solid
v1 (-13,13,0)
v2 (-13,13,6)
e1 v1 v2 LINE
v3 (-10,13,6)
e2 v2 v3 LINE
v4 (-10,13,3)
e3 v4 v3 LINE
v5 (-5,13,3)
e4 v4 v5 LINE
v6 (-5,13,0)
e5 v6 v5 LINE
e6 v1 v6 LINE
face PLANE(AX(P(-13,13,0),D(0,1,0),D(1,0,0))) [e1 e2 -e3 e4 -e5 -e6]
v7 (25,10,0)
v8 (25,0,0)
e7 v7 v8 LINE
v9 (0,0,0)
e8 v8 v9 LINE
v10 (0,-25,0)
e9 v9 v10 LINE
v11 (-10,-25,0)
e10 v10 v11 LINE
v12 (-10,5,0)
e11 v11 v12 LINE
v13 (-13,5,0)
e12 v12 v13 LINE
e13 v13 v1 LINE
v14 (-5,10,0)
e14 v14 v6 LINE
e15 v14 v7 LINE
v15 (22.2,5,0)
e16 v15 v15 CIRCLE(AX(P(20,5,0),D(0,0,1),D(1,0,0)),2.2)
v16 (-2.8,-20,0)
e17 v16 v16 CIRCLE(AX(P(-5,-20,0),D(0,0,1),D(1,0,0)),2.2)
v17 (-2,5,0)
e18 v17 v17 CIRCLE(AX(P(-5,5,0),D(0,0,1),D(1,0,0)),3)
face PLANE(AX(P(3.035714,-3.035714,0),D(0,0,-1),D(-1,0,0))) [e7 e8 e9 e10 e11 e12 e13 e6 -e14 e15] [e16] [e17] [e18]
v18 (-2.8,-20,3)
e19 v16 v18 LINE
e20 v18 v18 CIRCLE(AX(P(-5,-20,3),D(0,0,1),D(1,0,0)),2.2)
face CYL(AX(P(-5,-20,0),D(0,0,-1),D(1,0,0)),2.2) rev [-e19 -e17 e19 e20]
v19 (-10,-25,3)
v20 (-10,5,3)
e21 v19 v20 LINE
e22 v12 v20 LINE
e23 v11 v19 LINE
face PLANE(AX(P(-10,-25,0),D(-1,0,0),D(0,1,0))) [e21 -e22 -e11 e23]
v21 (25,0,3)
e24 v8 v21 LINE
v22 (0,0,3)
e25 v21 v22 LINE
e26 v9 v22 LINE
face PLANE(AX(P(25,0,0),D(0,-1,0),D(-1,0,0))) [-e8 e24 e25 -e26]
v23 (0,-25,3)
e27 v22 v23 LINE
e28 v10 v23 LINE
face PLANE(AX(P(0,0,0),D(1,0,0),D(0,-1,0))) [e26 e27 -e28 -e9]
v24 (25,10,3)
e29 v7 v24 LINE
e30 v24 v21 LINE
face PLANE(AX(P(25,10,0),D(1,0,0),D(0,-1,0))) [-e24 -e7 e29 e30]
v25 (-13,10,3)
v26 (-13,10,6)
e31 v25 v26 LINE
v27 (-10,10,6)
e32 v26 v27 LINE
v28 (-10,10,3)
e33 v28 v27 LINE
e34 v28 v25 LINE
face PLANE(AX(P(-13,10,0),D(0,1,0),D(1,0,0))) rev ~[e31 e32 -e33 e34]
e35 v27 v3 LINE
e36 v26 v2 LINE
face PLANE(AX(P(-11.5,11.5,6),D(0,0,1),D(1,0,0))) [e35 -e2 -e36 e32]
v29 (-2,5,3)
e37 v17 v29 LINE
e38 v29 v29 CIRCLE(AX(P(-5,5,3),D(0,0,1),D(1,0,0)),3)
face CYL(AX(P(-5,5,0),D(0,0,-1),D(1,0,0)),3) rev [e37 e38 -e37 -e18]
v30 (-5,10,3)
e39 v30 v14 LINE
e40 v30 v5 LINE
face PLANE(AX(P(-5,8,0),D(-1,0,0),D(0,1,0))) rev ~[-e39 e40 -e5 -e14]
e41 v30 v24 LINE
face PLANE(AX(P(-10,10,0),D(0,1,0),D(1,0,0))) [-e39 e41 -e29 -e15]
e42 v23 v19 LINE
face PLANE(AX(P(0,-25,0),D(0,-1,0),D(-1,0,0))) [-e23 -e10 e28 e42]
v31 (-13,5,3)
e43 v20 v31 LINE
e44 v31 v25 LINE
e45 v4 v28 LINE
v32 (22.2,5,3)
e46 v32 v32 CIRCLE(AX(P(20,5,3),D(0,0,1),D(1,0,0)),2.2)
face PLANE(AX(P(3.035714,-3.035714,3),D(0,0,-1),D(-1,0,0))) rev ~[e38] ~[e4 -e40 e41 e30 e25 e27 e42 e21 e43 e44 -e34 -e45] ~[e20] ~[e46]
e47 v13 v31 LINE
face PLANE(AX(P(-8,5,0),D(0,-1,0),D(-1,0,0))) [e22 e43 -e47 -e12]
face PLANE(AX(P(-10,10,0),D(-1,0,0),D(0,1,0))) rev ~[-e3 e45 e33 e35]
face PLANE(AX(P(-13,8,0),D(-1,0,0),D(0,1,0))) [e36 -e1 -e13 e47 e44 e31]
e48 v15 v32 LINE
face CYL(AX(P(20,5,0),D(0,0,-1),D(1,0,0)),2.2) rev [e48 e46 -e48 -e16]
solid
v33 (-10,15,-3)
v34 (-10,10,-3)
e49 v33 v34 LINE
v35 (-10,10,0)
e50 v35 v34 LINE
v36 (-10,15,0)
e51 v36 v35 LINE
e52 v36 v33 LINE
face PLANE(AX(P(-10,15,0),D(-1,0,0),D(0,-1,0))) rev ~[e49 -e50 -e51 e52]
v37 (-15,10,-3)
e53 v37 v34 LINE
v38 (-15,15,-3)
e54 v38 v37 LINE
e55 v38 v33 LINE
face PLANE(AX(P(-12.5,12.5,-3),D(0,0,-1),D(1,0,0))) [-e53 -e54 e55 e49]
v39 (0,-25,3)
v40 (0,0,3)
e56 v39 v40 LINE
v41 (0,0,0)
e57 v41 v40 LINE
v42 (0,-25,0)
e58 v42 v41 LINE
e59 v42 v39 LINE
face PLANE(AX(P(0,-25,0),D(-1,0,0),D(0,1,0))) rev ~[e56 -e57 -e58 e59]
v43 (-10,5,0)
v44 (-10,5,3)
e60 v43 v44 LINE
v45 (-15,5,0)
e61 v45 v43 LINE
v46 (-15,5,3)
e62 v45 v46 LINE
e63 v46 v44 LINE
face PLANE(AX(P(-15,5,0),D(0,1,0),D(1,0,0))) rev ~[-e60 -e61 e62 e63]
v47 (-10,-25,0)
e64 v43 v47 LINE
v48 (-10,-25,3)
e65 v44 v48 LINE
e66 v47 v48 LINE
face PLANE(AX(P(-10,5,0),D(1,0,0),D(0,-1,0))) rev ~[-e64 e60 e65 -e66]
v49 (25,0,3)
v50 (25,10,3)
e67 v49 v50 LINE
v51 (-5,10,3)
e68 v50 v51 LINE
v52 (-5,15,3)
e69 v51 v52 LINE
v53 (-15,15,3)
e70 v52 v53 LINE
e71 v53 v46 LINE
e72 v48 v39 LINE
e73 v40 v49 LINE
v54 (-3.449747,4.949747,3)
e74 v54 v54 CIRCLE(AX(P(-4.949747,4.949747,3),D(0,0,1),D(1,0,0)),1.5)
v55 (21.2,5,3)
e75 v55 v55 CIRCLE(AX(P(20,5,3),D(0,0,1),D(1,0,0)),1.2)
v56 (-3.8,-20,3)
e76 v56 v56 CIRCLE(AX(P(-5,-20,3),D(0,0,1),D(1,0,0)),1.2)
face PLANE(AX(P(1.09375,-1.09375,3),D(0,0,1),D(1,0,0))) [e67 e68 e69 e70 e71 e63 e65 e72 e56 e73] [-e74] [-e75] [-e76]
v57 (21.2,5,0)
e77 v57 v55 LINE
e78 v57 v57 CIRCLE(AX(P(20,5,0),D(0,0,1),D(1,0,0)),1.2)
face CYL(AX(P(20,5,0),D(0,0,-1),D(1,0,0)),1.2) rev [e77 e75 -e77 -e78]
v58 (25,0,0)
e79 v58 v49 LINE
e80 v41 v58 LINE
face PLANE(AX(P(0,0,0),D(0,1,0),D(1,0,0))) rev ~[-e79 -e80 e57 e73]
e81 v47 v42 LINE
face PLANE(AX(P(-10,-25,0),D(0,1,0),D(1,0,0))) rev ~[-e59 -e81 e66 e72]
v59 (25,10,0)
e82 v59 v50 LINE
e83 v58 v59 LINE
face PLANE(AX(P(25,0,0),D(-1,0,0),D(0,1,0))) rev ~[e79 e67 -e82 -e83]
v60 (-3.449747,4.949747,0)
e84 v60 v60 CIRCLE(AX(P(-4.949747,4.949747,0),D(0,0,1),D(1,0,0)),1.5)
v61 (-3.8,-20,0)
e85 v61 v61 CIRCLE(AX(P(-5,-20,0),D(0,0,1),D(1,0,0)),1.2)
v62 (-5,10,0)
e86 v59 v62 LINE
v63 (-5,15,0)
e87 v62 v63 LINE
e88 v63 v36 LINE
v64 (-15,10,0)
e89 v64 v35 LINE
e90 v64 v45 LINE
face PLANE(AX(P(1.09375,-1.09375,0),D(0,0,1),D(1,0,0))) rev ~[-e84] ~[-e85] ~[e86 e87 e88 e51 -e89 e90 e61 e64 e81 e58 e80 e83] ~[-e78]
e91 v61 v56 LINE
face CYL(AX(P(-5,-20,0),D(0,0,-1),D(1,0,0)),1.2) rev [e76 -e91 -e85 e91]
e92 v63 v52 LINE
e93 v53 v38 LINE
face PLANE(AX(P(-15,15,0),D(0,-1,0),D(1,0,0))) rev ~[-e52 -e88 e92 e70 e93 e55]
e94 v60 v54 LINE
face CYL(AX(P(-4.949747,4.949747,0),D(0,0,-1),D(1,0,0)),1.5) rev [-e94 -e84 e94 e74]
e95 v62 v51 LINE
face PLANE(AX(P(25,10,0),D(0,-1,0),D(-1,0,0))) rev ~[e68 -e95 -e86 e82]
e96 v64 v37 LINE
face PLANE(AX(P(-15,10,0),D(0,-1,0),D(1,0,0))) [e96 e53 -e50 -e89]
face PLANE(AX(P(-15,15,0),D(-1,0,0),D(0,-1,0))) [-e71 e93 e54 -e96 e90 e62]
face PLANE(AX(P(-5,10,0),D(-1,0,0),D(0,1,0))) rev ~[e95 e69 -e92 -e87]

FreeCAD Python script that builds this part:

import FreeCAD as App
import Part
import Sketcher

doc = App.newDocument("Part")
body = doc.addObject("PartDesign::Body", "Body")

# Sketch on XY plane
sketch1 = body.newObject("Sketcher::SketchObject", "Sketch")
sketch1.AttachmentSupport = (doc.getObject("XY_Plane"), [""])
sketch1.MapMode = "FlatFace"
sketch1.addGeometry([
    Part.LineSegment(App.Vector(-13, 5, 0), App.Vector(-8, 5, 0)),
    Part.LineSegment(App.Vector(-8, 5, 0), App.Vector(-8, 13, 0)),
    Part.LineSegment(App.Vector(-8, 13, 0), App.Vector(-13, 13, 0)),
    Part.LineSegment(App.Vector(-13, 13, 0), App.Vector(-13, 5, 0)),
], False)
sketch1.addConstraint([
    Sketcher.Constraint("Coincident", 0, 2, 1, 1),
    Sketcher.Constraint("Coincident", 1, 2, 2, 1),
    Sketcher.Constraint("Coincident", 2, 2, 3, 1),
    Sketcher.Constraint("Coincident", 3, 2, 0, 1),
    Sketcher.Constraint("Horizontal", 0),
    Sketcher.Constraint("Vertical", 1),
    Sketcher.Constraint("Horizontal", 2),
    Sketcher.Constraint("Vertical", 3),
    Sketcher.Constraint("DistanceX", 0, 1, 0, 2, 5.0),
    Sketcher.Constraint("DistanceY", 1, 1, 1, 2, 8.0),
    Sketcher.Constraint("DistanceX", 0, 2, -1, 1, 8.0),
    Sketcher.Constraint("DistanceY", -1, 1, 0, 2, 5.0),
])
pad1 = body.newObject("PartDesign::Pad", "Pad")
pad1.Profile = sketch1
pad1.Length = 3
body2 = doc.addObject("PartDesign::Body", "Body001")

# Sketch on XY plane
sketch2 = body2.newObject("Sketcher::SketchObject", "Sketch001")
sketch2.AttachmentSupport = (doc.getObject("XY_Plane001"), [""])
sketch2.MapMode = "FlatFace"
sketch2.addGeometry([
    Part.LineSegment(App.Vector(0, -25, 0), App.Vector(0, 0, 0)),  # 0
    Part.LineSegment(App.Vector(0, 0, 0), App.Vector(25, 0, 0)),  # 1
    Part.LineSegment(App.Vector(25, 0, 0), App.Vector(25, 10, 0)),  # 2
    Part.LineSegment(App.Vector(25, 10, 0), App.Vector(-10, 10, 0)),  # 3
    Part.LineSegment(App.Vector(-10, 10, 0), App.Vector(-10, -25, 0)),  # 4
    Part.LineSegment(App.Vector(-10, -25, 0), App.Vector(0, -25, 0)),  # 5
    Part.Circle(App.Vector(-5, -20, 0), App.Vector(0, 0, 1), 2.2),  # 6
    Part.Circle(App.Vector(20, 5, 0), App.Vector(0, 0, 1), 2.2),  # 7
    Part.Circle(App.Vector(-5, 5, 0), App.Vector(0, 0, 1), 3),  # 8
], False)
sketch2.addConstraint([
    Sketcher.Constraint("Coincident", 0, 2, 1, 1),
    Sketcher.Constraint("Coincident", 1, 2, 2, 1),
    Sketcher.Constraint("Coincident", 2, 2, 3, 1),
    Sketcher.Constraint("Coincident", 3, 2, 4, 1),
    Sketcher.Constraint("Coincident", 4, 2, 5, 1),
    Sketcher.Constraint("Coincident", 5, 2, 0, 1),
    Sketcher.Constraint("Vertical", 0),
    Sketcher.Constraint("Horizontal", 1),
    Sketcher.Constraint("Vertical", 2),
    Sketcher.Constraint("Horizontal", 3),
    Sketcher.Constraint("Vertical", 4),
    Sketcher.Constraint("Horizontal", 5),
    Sketcher.Constraint("Coincident", 0, 2, -1, 1),
    Sketcher.Constraint("Equal", 6, 7),
    Sketcher.Constraint("Horizontal", 7, 3, 8, 3),
    Sketcher.Constraint("Vertical", 6, 3, 8, 3),
    Sketcher.Constraint("Equal", 1, 0),
    Sketcher.Constraint("Equal", 5, 2),
    Sketcher.Constraint("Diameter", 8, 6.0),
    Sketcher.Constraint("Diameter", 6, 4.4),
    Sketcher.Constraint("DistanceX", 1, 1, 1, 2, 25.0),
    Sketcher.Constraint("DistanceX", 3, 2, 3, 1, 35.0),
    Sketcher.Constraint("DistanceX", 6, 3, -1, 1, 5.0),
    Sketcher.Constraint("DistanceY", 6, 3, -1, 1, 20.0),
    Sketcher.Constraint("DistanceX", -1, 1, 7, 3, 20.0),
    Sketcher.Constraint("DistanceY", -1, 1, 7, 3, 5.0),
])
pad2 = body2.newObject("PartDesign::Pad", "Pad001")
pad2.Profile = sketch2
pad2.Length = 3
body3 = doc.addObject("PartDesign::Body", "Body002")

# Sketch on XY plane
sketch3 = body3.newObject("Sketcher::SketchObject", "Sketch002")
sketch3.AttachmentSupport = (doc.getObject("XY_Plane002"), [""])
sketch3.MapMode = "FlatFace"
sketch3.addGeometry([
    Part.LineSegment(App.Vector(-13, 13, 0), App.Vector(-13, 10, 0)),
    Part.LineSegment(App.Vector(-13, 10, 0), App.Vector(-10, 10, 0)),
    Part.LineSegment(App.Vector(-10, 10, 0), App.Vector(-10, 13, 0)),
    Part.LineSegment(App.Vector(-10, 13, 0), App.Vector(-13, 13, 0)),
], False)
sketch3.addConstraint([
    Sketcher.Constraint("Coincident", 0, 2, 1, 1),
    Sketcher.Constraint("Coincident", 1, 2, 2, 1),
    Sketcher.Constraint("Coincident", 2, 2, 3, 1),
    Sketcher.Constraint("Coincident", 3, 2, 0, 1),
    Sketcher.Constraint("Vertical", 0),
    Sketcher.Constraint("Horizontal", 1),
    Sketcher.Constraint("Vertical", 2),
    Sketcher.Constraint("Horizontal", 3),
    Sketcher.Constraint("Equal", 3, 0),
    Sketcher.Constraint("DistanceX", 1, 1, 1, 2, 3.0),
    Sketcher.Constraint("DistanceX", 0, 2, -1, 1, 13.0),
    Sketcher.Constraint("DistanceY", -1, 1, 0, 2, 10.0),
])
pad3 = body3.newObject("PartDesign::Pad", "Pad002")
pad3.Profile = sketch3
pad3.Length = 6
body4 = doc.addObject("PartDesign::Body", "Body003")

# Sketch on XY plane
sketch4 = body4.newObject("Sketcher::SketchObject", "Sketch003")
sketch4.AttachmentSupport = (doc.getObject("XY_Plane003"), [""])
sketch4.MapMode = "FlatFace"
sketch4.addGeometry([
    Part.LineSegment(App.Vector(-13, 13, 0), App.Vector(-13, 8, 0)),
    Part.LineSegment(App.Vector(-13, 8, 0), App.Vector(-5, 8, 0)),
    Part.LineSegment(App.Vector(-5, 8, 0), App.Vector(-5, 13, 0)),
    Part.LineSegment(App.Vector(-5, 13, 0), App.Vector(-13, 13, 0)),
], False)
sketch4.addConstraint([
    Sketcher.Constraint("Coincident", 0, 2, 1, 1),
    Sketcher.Constraint("Coincident", 1, 2, 2, 1),
    Sketcher.Constraint("Coincident", 2, 2, 3, 1),
    Sketcher.Constraint("Coincident", 3, 2, 0, 1),
    Sketcher.Constraint("Vertical", 0),
    Sketcher.Constraint("Horizontal", 1),
    Sketcher.Constraint("Vertical", 2),
    Sketcher.Constraint("Horizontal", 3),
    Sketcher.Constraint("DistanceX", 1, 1, 1, 2, 8.0),
    Sketcher.Constraint("DistanceY", 0, 2, 0, 1, 5.0),
    Sketcher.Constraint("DistanceX", 0, 2, -1, 1, 13.0),
    Sketcher.Constraint("DistanceY", -1, 1, 0, 2, 8.0),
])
pad4 = body4.newObject("PartDesign::Pad", "Pad003")
pad4.Profile = sketch4
pad4.Length = 3
doc.recompute()

boolean = body4.newObject("PartDesign::Boolean", "Boolean")
boolean.Type = "Fuse"
boolean.addObjects([body3])
doc.recompute()

boolean2 = body4.newObject("PartDesign::Boolean", "Boolean001")
boolean2.Type = "Fuse"
boolean2.addObjects([body2])
doc.recompute()

boolean3 = body4.newObject("PartDesign::Boolean", "Boolean002")
boolean3.Type = "Fuse"
boolean3.addObjects([body])
body5 = doc.addObject("PartDesign::Body", "Body004")

# Sketch on XY plane
sketch5 = body5.newObject("Sketcher::SketchObject", "Sketch004")
sketch5.AttachmentSupport = (doc.getObject("XY_Plane004"), [""])
sketch5.MapMode = "FlatFace"
sketch5.addGeometry([
    Part.LineSegment(App.Vector(25, 10, 0), App.Vector(-5, 10, 0)),  # 0
    Part.LineSegment(App.Vector(-5, 10, 0), App.Vector(-5, 15, 0)),  # 1
    Part.LineSegment(App.Vector(-5, 15, 0), App.Vector(-15, 15, 0)),  # 2
    Part.LineSegment(App.Vector(-15, 15, 0), App.Vector(-15, 5, 0)),  # 3
    Part.LineSegment(App.Vector(-15, 5, 0), App.Vector(-10, 5, 0)),  # 4
    Part.LineSegment(App.Vector(-10, 5, 0), App.Vector(-10, -25, 0)),  # 5
    Part.LineSegment(App.Vector(-10, -25, 0), App.Vector(0, -25, 0)),  # 6
    Part.LineSegment(App.Vector(0, -25, 0), App.Vector(0, 0, 0)),  # 7
    Part.LineSegment(App.Vector(0, 0, 0), App.Vector(25, 0, 0)),  # 8
    Part.LineSegment(App.Vector(25, 0, 0), App.Vector(25, 10, 0)),  # 9
    Part.Circle(App.Vector(-5, -20, 0), App.Vector(0, 0, 1), 1.2),  # 10
    Part.Circle(App.Vector(-4.949747, 4.949747, 0), App.Vector(0, 0, 1), 1.5),  # 11
    Part.Circle(App.Vector(20, 5, 0), App.Vector(0, 0, 1), 1.2),  # 12
], False)
sketch5.addConstraint([
    Sketcher.Constraint("Coincident", 0, 2, 1, 1),
    Sketcher.Constraint("Coincident", 1, 2, 2, 1),
    Sketcher.Constraint("Coincident", 2, 2, 3, 1),
    Sketcher.Constraint("Coincident", 3, 2, 4, 1),
    Sketcher.Constraint("Coincident", 4, 2, 5, 1),
    Sketcher.Constraint("Coincident", 5, 2, 6, 1),
    Sketcher.Constraint("Coincident", 6, 2, 7, 1),
    Sketcher.Constraint("Coincident", 7, 2, 8, 1),
    Sketcher.Constraint("Coincident", 8, 2, 9, 1),
    Sketcher.Constraint("Coincident", 9, 2, 0, 1),
    Sketcher.Constraint("Horizontal", 0),
    Sketcher.Constraint("Vertical", 1),
    Sketcher.Constraint("Horizontal", 2),
    Sketcher.Constraint("Vertical", 3),
    Sketcher.Constraint("Horizontal", 4),
    Sketcher.Constraint("Vertical", 5),
    Sketcher.Constraint("Horizontal", 6),
    Sketcher.Constraint("Vertical", 7),
    Sketcher.Constraint("Horizontal", 8),
    Sketcher.Constraint("Vertical", 9),
    Sketcher.Constraint("Coincident", 7, 2, -1, 1),
    Sketcher.Constraint("Equal", 10, 12),
    Sketcher.Constraint("Horizontal", 12, 3, 3, 2),
    Sketcher.Constraint("Vertical", 10, 3, 0, 2),
    Sketcher.Constraint("Equal", 2, 6),
    Sketcher.Constraint("Equal", 4, 1),
    Sketcher.Constraint("Equal", 6, 3),
    Sketcher.Constraint("Equal", 0, 5),
    Sketcher.Constraint("Equal", 8, 7),
    Sketcher.Constraint("Diameter", 11, 3.0),
    Sketcher.Constraint("Diameter", 10, 2.4),
    Sketcher.Constraint("DistanceX", 0, 2, 0, 1, 30.0),
    Sketcher.Constraint("DistanceX", 2, 2, 2, 1, 10.0),
    Sketcher.Constraint("DistanceX", 4, 1, 4, 2, 5.0),
    Sketcher.Constraint("DistanceY", 10, 3, -1, 1, 20.0),
    Sketcher.Constraint("DistanceX", -1, 1, 12, 3, 20.0),
    Sketcher.Constraint("DistanceX", 11, 3, -1, 1, 4.949747),
    Sketcher.Constraint("DistanceY", -1, 1, 11, 3, 4.949747),
])
pad5 = body5.newObject("PartDesign::Pad", "Pad004")
pad5.Profile = sketch5
pad5.Length = 3

# Sketch on XY plane
sketch6 = body5.newObject("Sketcher::SketchObject", "Sketch005")
sketch6.AttachmentSupport = (doc.getObject("XY_Plane004"), [""])
sketch6.MapMode = "FlatFace"
sketch6.addGeometry([
    Part.LineSegment(App.Vector(-15, 10, 0), App.Vector(-15, 15, 0)),
    Part.LineSegment(App.Vector(-15, 15, 0), App.Vector(-10, 15, 0)),
    Part.LineSegment(App.Vector(-10, 15, 0), App.Vector(-10, 10, 0)),
    Part.LineSegment(App.Vector(-10, 10, 0), App.Vector(-15, 10, 0)),
], False)
sketch6.addConstraint([
    Sketcher.Constraint("Coincident", 0, 2, 1, 1),
    Sketcher.Constraint("Coincident", 1, 2, 2, 1),
    Sketcher.Constraint("Coincident", 2, 2, 3, 1),
    Sketcher.Constraint("Coincident", 3, 2, 0, 1),
    Sketcher.Constraint("Vertical", 0),
    Sketcher.Constraint("Horizontal", 1),
    Sketcher.Constraint("Vertical", 2),
    Sketcher.Constraint("Horizontal", 3),
    Sketcher.Constraint("Equal", 3, 0),
    Sketcher.Constraint("DistanceX", 1, 1, 1, 2, 5.0),
    Sketcher.Constraint("DistanceX", 0, 2, -1, 1, 15.0),
    Sketcher.Constraint("DistanceY", -1, 1, 0, 2, 15.0),
])
pad6 = body5.newObject("PartDesign::Pad", "Pad005")
pad6.Profile = sketch6
pad6.Length = 3
pad6.Reversed = True

doc.recompute()
